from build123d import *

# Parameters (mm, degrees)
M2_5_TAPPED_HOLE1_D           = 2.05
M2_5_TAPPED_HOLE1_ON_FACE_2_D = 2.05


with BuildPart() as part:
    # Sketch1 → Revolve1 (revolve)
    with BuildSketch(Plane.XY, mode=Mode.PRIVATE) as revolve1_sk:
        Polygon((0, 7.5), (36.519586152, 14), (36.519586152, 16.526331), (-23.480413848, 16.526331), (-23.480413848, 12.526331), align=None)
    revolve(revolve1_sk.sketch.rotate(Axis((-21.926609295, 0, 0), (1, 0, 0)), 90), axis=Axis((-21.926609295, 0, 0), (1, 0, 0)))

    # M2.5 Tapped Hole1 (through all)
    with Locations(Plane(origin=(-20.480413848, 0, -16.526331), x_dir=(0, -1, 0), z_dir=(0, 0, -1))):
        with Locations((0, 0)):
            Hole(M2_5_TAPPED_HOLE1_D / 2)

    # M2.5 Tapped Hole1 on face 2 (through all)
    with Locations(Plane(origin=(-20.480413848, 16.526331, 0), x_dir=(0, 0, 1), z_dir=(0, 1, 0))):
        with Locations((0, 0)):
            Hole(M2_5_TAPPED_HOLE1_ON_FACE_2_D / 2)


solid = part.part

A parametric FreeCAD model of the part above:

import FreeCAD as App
import Part
import Sketcher
from FreeCAD import Vector
Q = App.Units.Quantity

doc = App.newDocument("Part")
body = doc.addObject("PartDesign::Body", "Body")

# Sketch on XY plane
sketch1 = doc.addObject("Sketcher::SketchObject", "Sketch")
body.addObject(sketch1)
sketch1.AttachmentSupport = (doc.XY_Plane, [""])
sketch1.MapMode = "FlatFace"
sketch1.addGeometry(Part.LineSegment(Vector(0, 7.5, 0), Vector(36.519586, 14, 0)), False)
sketch1.addGeometry(Part.LineSegment(Vector(36.519586, 14, 0), Vector(36.519586, 16.526331, 0)), False)
sketch1.addGeometry(Part.LineSegment(Vector(36.519586, 16.526331, 0), Vector(-23.480414, 16.526331, 0)), False)
sketch1.addGeometry(Part.LineSegment(Vector(-23.480414, 16.526331, 0), Vector(-23.480414, 12.526331, 0)), False)
sketch1.addGeometry(Part.LineSegment(Vector(-23.480414, 12.526331, 0), Vector(0, 7.5, 0)), False)
sketch1.addConstraint(Sketcher.Constraint("Coincident", 0, 2, 1, 1))
sketch1.addConstraint(Sketcher.Constraint("Coincident", 1, 2, 2, 1))
sketch1.addConstraint(Sketcher.Constraint("Coincident", 2, 2, 3, 1))
sketch1.addConstraint(Sketcher.Constraint("Coincident", 3, 2, 4, 1))
sketch1.addConstraint(Sketcher.Constraint("Coincident", 4, 2, 0, 1))
sketch1.addConstraint(Sketcher.Constraint("Vertical", 1))
sketch1.addConstraint(Sketcher.Constraint("Horizontal", 2))
sketch1.addConstraint(Sketcher.Constraint("Vertical", 3))
sketch1.addConstraint(Sketcher.Constraint("PointOnObject", 4, 2, -2))
sketch1.addConstraint(Sketcher.Constraint("DistanceX", 2, 2, 2, 1, Q("60 mm")))
sketch1.addConstraint(Sketcher.Constraint("DistanceY", 3, 2, 3, 1, Q("4 mm")))
sketch1.addConstraint(Sketcher.Constraint("DistanceY", -1, 1, 0, 2, Q("14 mm")))
sketch1.addConstraint(Sketcher.Constraint("DistanceY", -1, 1, 4, 2, Q("7.5 mm")))
sketch1.addConstraint(Sketcher.Constraint("DistanceY", 1, 1, 1, 2, Q("2.526331 mm")))
sketch1.addConstraint(Sketcher.Constraint("Distance", 4, Q("24.012368 mm")))
revolution = doc.addObject("PartDesign::Revolution", "Revolution")
body.addObject(revolution)
revolution.Profile = sketch1
revolution.ReferenceAxis = (sketch1, ["H_Axis"])
revolution.Angle = 360

# Sketch on XY plane
sketch2 = doc.addObject("Sketcher::SketchObject", "Sketch001")
body.addObject(sketch2)
sketch2.AttachmentSupport = (doc.XY_Plane, [""])
sketch2.MapMode = "FlatFace"
sketch2.AttachmentOffset = App.Placement(Vector(0, 0, -16.526331), App.Rotation())
sketch2.addGeometry(Part.Circle(Vector(-20.480414, 0, 0), Vector(0, 0, 1), 1.025), False)
sketch2.addConstraint(Sketcher.Constraint("PointOnObject", 0, 3, -1))
sketch2.addConstraint(Sketcher.Constraint("Diameter", 0, Q("2.05 mm")))
sketch2.addConstraint(Sketcher.Constraint("DistanceX", 0, 3, -1, 1, Q("20.480414 mm")))
doc.recompute()
hole = doc.addObject("PartDesign::Hole", "Hole")
body.addObject(hole)
hole.Profile = sketch2
hole.ThreadType = "None"
hole.Diameter = 2.05
hole.DepthType = "ThroughAll"
hole.Reversed = True

# Sketch on XZ plane
sketch3 = doc.addObject("Sketcher::SketchObject", "Sketch002")
body.addObject(sketch3)
sketch3.AttachmentSupport = (doc.XZ_Plane, [""])
sketch3.MapMode = "FlatFace"
sketch3.AttachmentOffset = App.Placement(Vector(0, 0, -16.526331), App.Rotation())
sketch3.addGeometry(Part.Circle(Vector(-20.480414, 0, 0), Vector(0, 0, 1), 1.025), False)
sketch3.addConstraint(Sketcher.Constraint("PointOnObject", 0, 3, -1))
sketch3.addConstraint(Sketcher.Constraint("Diameter", 0, Q("2.05 mm")))
sketch3.addConstraint(Sketcher.Constraint("DistanceX", 0, 3, -1, 1, Q("20.480414 mm")))
doc.recompute()
hole2 = doc.addObject("PartDesign::Hole", "Hole001")
body.addObject(hole2)
hole2.Profile = sketch3
hole2.ThreadType = "None"
hole2.Diameter = 2.05
hole2.DepthType = "ThroughAll"
hole2.Reversed = True

doc.recompute()
